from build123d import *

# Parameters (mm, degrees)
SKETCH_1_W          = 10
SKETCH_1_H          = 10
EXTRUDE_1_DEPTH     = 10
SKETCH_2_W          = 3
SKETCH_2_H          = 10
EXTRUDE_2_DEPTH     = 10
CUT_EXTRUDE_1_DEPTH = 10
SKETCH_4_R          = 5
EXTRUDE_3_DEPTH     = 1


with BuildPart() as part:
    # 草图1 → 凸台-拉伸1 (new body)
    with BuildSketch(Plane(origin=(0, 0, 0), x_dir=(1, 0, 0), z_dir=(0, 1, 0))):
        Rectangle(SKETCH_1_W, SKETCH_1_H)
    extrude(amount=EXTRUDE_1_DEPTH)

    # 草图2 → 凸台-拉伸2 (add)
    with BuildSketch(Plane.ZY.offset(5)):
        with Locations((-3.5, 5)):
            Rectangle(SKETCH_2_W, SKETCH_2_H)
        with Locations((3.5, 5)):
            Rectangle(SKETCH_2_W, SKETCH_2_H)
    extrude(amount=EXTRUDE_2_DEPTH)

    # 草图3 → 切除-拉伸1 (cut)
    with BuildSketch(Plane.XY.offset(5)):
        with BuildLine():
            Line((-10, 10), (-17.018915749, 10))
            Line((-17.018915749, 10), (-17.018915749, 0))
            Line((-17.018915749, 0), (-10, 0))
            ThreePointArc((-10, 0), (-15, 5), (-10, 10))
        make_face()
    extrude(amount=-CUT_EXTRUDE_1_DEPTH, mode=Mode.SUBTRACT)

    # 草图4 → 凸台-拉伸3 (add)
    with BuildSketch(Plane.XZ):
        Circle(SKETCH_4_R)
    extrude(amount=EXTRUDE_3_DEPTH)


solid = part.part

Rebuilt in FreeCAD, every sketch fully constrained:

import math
import FreeCAD as App
import Part
import Sketcher
Q = App.Units.Quantity


def add_polygon(sketch, points):
    """Adds a closed chain of lines whose ends are joined by coincident constraints."""
    first, n = sketch.GeometryCount, len(points)
    for a, b in zip(points, points[1:] + points[:1]):
        sketch.addGeometry(Part.LineSegment(App.Vector(*a, 0), App.Vector(*b, 0)), False)
    for i in range(n):
        sketch.addConstraint(Sketcher.Constraint("Coincident", first + i, 2, first + (i + 1) % n, 1))

doc = App.newDocument("Part")
body = doc.addObject("PartDesign::Body", "Body")

sketch1 = body.newObject("Sketcher::SketchObject", "Sketch")
sketch1.AttachmentSupport = (doc.getObject("XZ_Plane"), [""])
sketch1.MapMode = "FlatFace"
add_polygon(sketch1, [(-5, -5), (-5, 5), (5, 5), (5, -5)])
sketch1.addConstraint([
    Sketcher.Constraint("Vertical", 0),
    Sketcher.Constraint("Horizontal", 1),
    Sketcher.Constraint("Vertical", 2),
    Sketcher.Constraint("Horizontal", 3),
    Sketcher.Constraint("Symmetric", 0, 2, 2, 2, -1, 1),
    Sketcher.Constraint("Equal", 3, 0),
    Sketcher.Constraint("DistanceX", 1, 1, 1, 2, Q("10 mm")),
])
pad1 = body.newObject("PartDesign::Pad", "Pad")
pad1.Profile = sketch1
pad1.Length = 10
pad1.Reversed = True

sketch2 = body.newObject("Sketcher::SketchObject", "Sketch001")
sketch2.AttachmentSupport = (doc.getObject("YZ_Plane"), [""])
sketch2.MapMode = "FlatFace"
sketch2.AttachmentOffset = App.Placement(App.Vector(0, 0, -5), App.Rotation())
add_polygon(sketch2, [(10, -5), (0, -5), (0, -2), (10, -2)])
add_polygon(sketch2, [(10, 2), (0, 2), (0, 5), (10, 5)])
sketch2.addConstraint([
    Sketcher.Constraint("Horizontal", 0),
    Sketcher.Constraint("Vertical", 1),
    Sketcher.Constraint("Horizontal", 2),
    Sketcher.Constraint("Vertical", 3),
    Sketcher.Constraint("Horizontal", 4),
    Sketcher.Constraint("Vertical", 5),
    Sketcher.Constraint("Horizontal", 6),
    Sketcher.Constraint("Vertical", 7),
    Sketcher.Constraint("Symmetric", 1, 2, 4, 2, -1, 1),
    Sketcher.Constraint("Symmetric", 0, 2, 5, 2, -1),
    Sketcher.Constraint("Vertical", 3, 2, 6, 2),
    Sketcher.Constraint("DistanceX", 0, 2, 0, 1, Q("10 mm")),
    Sketcher.Constraint("DistanceY", 1, 1, 1, 2, Q("3 mm")),
    Sketcher.Constraint("DistanceY", 0, 2, -1, 1, Q("5 mm")),
])
pad2 = body.newObject("PartDesign::Pad", "Pad001")
pad2.Profile = sketch2
pad2.Length = 10
pad2.Reversed = True

sketch3 = body.newObject("Sketcher::SketchObject", "Sketch002")
sketch3.AttachmentSupport = (doc.getObject("XY_Plane"), [""])
sketch3.MapMode = "FlatFace"
sketch3.AttachmentOffset = App.Placement(App.Vector(0, 0, 5), App.Rotation())
sketch3.addGeometry([
    Part.LineSegment(App.Vector(-10, 10, 0), App.Vector(-17, 10, 0)),
    Part.LineSegment(App.Vector(-17, 10, 0), App.Vector(-17, 0, 0)),
    Part.LineSegment(App.Vector(-17, 0, 0), App.Vector(-10, 0, 0)),
    Part.ArcOfCircle(Part.Circle(App.Vector(-10, 5, 0), App.Vector(0, 0, 1), 5), math.radians(90), math.radians(270)),
], False)
sketch3.addConstraint([
    Sketcher.Constraint("Coincident", 0, 2, 1, 1),
    Sketcher.Constraint("Coincident", 1, 2, 2, 1),
    Sketcher.Constraint("Tangent", 2, 2, 3, 2),
    Sketcher.Constraint("Tangent", 3, 1, 0, 1),
    Sketcher.Constraint("Horizontal", 0),
    Sketcher.Constraint("Vertical", 1),
    Sketcher.Constraint("Horizontal", 2),
    Sketcher.Constraint("PointOnObject", 1, 2, -1),
    Sketcher.Constraint("Radius", 3, Q("5 mm")),
    Sketcher.Constraint("DistanceX", 3, 3, -1, 1, Q("10 mm")),
    Sketcher.Constraint("DistanceX", 0, 2, 0, 1, Q("7.018916 mm")),
])
pocket1 = body.newObject("PartDesign::Pocket", "Pocket")
pocket1.Profile = sketch3
pocket1.Length = 10

sketch4 = body.newObject("Sketcher::SketchObject", "Sketch003")
sketch4.AttachmentSupport = (doc.getObject("XZ_Plane"), [""])
sketch4.MapMode = "FlatFace"
sketch4.addGeometry(Part.Circle(App.Vector(0, 0, 0), App.Vector(0, 0, 1), 5), False)
sketch4.addConstraint([
    Sketcher.Constraint("Coincident", 0, 3, -1, 1),
    Sketcher.Constraint("Diameter", 0, Q("10 mm")),
])
pad3 = body.newObject("PartDesign::Pad", "Pad002")
pad3.Profile = sketch4
pad3.Length = 1

doc.recompute()
